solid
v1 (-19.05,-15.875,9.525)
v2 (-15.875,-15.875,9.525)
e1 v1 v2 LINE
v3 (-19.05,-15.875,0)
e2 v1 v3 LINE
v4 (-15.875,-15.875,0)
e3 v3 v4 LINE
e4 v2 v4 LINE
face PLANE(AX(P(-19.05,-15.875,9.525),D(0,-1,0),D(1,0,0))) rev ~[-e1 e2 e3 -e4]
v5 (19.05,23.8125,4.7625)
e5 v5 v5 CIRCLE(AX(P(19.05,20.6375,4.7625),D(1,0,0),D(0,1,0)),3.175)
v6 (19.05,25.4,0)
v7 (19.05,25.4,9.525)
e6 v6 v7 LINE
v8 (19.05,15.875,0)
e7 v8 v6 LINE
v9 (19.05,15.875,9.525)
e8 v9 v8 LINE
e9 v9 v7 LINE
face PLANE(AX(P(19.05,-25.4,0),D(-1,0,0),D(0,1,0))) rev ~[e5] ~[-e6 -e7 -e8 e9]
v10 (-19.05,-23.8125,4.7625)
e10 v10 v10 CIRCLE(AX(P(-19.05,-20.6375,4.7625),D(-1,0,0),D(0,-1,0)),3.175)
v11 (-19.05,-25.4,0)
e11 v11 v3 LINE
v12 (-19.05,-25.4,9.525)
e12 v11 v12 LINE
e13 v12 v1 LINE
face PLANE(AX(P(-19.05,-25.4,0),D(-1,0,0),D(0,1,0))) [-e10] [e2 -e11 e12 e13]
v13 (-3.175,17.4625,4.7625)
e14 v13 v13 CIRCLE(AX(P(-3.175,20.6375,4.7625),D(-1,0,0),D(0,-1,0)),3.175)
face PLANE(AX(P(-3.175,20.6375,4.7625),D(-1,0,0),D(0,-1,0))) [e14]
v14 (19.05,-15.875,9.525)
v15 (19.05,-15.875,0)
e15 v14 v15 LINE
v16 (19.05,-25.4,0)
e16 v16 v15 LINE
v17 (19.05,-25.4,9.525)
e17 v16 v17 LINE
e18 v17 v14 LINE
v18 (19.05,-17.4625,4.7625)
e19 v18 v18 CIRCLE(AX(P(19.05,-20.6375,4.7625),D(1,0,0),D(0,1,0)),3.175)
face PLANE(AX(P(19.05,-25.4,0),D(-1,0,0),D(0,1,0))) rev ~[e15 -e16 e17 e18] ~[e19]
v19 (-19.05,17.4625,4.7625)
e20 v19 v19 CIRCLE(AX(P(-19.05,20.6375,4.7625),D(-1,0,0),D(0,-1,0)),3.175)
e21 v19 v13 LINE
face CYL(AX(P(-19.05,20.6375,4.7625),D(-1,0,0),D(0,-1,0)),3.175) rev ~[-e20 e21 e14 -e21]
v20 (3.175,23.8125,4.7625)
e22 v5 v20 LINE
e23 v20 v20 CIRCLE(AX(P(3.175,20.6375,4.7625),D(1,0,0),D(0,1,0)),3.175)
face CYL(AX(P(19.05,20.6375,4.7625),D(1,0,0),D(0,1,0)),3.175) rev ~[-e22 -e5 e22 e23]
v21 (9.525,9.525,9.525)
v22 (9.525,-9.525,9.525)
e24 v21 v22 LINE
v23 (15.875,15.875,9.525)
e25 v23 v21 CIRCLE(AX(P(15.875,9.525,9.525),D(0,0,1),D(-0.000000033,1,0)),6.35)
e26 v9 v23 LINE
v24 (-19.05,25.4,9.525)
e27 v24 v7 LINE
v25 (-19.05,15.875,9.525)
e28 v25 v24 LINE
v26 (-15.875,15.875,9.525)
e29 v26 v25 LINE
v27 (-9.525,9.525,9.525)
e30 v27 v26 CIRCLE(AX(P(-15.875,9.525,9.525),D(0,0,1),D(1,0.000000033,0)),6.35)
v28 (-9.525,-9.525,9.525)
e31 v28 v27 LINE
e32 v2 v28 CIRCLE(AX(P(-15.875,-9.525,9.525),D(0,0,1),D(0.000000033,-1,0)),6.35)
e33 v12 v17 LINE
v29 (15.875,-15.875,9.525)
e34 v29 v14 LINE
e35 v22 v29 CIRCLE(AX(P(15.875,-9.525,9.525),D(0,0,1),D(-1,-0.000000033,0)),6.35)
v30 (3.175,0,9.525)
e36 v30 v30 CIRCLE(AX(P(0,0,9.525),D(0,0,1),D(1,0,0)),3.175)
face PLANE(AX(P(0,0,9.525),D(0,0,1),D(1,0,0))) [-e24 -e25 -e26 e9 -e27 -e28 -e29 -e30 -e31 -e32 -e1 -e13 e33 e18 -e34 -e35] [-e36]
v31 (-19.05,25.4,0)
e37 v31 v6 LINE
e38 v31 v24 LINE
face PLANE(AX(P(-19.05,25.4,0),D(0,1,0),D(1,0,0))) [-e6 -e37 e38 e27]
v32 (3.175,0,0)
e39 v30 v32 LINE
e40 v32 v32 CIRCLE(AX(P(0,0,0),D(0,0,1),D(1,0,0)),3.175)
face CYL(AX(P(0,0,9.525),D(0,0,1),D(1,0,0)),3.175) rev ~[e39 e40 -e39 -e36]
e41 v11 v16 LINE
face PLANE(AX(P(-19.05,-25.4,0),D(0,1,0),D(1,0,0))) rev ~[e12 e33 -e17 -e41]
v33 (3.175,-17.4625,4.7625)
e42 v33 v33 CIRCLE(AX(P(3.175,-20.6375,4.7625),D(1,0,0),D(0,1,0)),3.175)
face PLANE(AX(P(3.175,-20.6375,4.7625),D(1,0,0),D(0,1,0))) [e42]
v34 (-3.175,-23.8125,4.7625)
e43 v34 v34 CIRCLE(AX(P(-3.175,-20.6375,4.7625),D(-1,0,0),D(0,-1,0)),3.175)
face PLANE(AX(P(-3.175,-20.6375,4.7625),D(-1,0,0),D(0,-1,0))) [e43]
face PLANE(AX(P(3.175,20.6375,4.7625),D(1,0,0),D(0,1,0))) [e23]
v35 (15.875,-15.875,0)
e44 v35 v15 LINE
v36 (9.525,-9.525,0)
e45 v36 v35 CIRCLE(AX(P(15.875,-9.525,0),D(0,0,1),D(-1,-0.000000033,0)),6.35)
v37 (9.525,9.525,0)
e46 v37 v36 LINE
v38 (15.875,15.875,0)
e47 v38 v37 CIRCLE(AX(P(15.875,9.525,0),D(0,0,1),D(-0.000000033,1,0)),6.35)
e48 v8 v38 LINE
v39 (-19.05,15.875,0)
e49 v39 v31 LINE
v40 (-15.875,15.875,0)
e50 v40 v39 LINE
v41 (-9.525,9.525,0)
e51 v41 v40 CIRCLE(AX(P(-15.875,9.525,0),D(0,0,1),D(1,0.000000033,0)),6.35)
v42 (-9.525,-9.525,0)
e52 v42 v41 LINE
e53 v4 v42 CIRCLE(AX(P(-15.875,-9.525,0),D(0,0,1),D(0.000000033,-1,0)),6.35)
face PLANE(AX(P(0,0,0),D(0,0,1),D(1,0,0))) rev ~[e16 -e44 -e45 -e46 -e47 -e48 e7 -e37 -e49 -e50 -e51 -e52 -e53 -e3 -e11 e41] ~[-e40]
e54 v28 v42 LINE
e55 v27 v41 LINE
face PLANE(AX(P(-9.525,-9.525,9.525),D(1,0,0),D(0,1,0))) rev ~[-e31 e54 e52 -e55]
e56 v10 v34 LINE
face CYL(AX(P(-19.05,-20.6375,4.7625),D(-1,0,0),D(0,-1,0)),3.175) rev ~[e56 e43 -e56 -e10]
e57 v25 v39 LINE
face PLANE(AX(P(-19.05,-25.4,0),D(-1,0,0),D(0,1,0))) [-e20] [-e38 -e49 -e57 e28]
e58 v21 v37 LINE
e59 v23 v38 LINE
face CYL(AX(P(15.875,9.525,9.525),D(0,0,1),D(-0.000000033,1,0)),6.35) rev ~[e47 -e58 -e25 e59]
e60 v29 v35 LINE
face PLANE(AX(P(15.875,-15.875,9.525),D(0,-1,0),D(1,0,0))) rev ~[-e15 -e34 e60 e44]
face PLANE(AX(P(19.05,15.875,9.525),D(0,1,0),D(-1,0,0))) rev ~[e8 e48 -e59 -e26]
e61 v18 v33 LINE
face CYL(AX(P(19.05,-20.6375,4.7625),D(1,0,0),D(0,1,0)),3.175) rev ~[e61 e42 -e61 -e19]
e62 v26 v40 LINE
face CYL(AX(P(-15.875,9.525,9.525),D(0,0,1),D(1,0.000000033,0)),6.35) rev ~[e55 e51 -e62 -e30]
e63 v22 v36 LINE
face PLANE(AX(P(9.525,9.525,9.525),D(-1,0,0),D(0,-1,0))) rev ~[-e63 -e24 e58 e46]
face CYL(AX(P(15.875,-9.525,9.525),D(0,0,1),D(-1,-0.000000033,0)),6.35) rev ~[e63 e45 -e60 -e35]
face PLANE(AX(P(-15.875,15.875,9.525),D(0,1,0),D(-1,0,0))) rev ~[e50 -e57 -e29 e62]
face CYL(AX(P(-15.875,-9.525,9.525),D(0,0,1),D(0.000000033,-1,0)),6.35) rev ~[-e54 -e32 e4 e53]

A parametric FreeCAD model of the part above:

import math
import FreeCAD as App
import Part
import Sketcher
Q = App.Units.Quantity

doc = App.newDocument("Part")
body = doc.addObject("PartDesign::Body", "Body")

# Sketch on XY plane
sketch1 = body.newObject("Sketcher::SketchObject", "Sketch")
sketch1.AttachmentSupport = (doc.getObject("XY_Plane"), [""])
sketch1.MapMode = "FlatFace"
sketch1.addGeometry([
    Part.LineSegment(App.Vector(-19.05, 25.4, 0), App.Vector(-19.05, -25.4, 0)),
    Part.LineSegment(App.Vector(-19.05, -25.4, 0), App.Vector(19.05, -25.4, 0)),
    Part.LineSegment(App.Vector(19.05, -25.4, 0), App.Vector(19.05, 25.4, 0)),
    Part.LineSegment(App.Vector(19.05, 25.4, 0), App.Vector(-19.05, 25.4, 0)),
], False)
sketch1.addConstraint([
    Sketcher.Constraint("Coincident", 0, 2, 1, 1),
    Sketcher.Constraint("Coincident", 1, 2, 2, 1),
    Sketcher.Constraint("Coincident", 2, 2, 3, 1),
    Sketcher.Constraint("Coincident", 3, 2, 0, 1),
    Sketcher.Constraint("Vertical", 0),
    Sketcher.Constraint("Horizontal", 1),
    Sketcher.Constraint("Vertical", 2),
    Sketcher.Constraint("Horizontal", 3),
    Sketcher.Constraint("Symmetric", 0, 2, 2, 2, -1, 1),
    Sketcher.Constraint("DistanceY", 0, 2, 0, 1, Q("2 in")),
    Sketcher.Constraint("DistanceX", 1, 1, 1, 2, Q("1.5 in")),
])
pad1 = body.newObject("PartDesign::Pad", "Pad")
pad1.Profile = sketch1
pad1.Length = Q("0.375 in")

# Sketch on XY plane
sketch2 = body.newObject("Sketcher::SketchObject", "Sketch001")
sketch2.AttachmentSupport = (doc.getObject("XY_Plane"), [""])
sketch2.MapMode = "FlatFace"
sketch2.AttachmentOffset = App.Placement(App.Vector(0, 0, 0.375 * 25.4), App.Rotation())
sketch2.addGeometry([
    Part.LineSegment(App.Vector(-15.875, 15.875, 0), App.Vector(-19.05, 15.875, 0)),  # 0
    Part.LineSegment(App.Vector(-19.05, 15.875, 0), App.Vector(-19.05, -15.875, 0)),  # 1
    Part.LineSegment(App.Vector(-19.05, -15.875, 0), App.Vector(-15.875, -15.875, 0)),  # 2
    Part.ArcOfCircle(Part.Circle(App.Vector(-15.875, -9.525, 0), App.Vector(0, 0, 1), 6.35), math.radians(-89.999998), math.radians(-0.000002)),  # 3
    Part.LineSegment(App.Vector(-9.525, -9.525, 0), App.Vector(-9.525, 9.525, 0)),  # 4
    Part.ArcOfCircle(Part.Circle(App.Vector(-15.875, 9.525, 0), App.Vector(0, 0, 1), 6.35), math.radians(0.000002), math.radians(89.999998)),  # 5
    Part.LineSegment(App.Vector(19.05, 15.875, 0), App.Vector(15.875, 15.875, 0)),  # 6
    Part.ArcOfCircle(Part.Circle(App.Vector(15.875, 9.525, 0), App.Vector(0, 0, 1), 6.35), math.radians(90.000002), math.radians(179.999998)),  # 7
    Part.LineSegment(App.Vector(9.525, 9.525, 0), App.Vector(9.525, -9.525, 0)),  # 8
    Part.ArcOfCircle(Part.Circle(App.Vector(15.875, -9.525, 0), App.Vector(0, 0, 1), 6.35), math.radians(-179.999998), math.radians(-90.000002)),  # 9
    Part.LineSegment(App.Vector(15.875, -15.875, 0), App.Vector(19.05, -15.875, 0)),  # 10
    Part.LineSegment(App.Vector(19.05, -15.875, 0), App.Vector(19.05, 15.875, 0)),  # 11
], False)
sketch2.addConstraint([
    Sketcher.Constraint("Coincident", 0, 2, 1, 1),
    Sketcher.Constraint("Coincident", 1, 2, 2, 1),
    Sketcher.Constraint("Tangent", 2, 2, 3, 1),
    Sketcher.Constraint("Tangent", 3, 2, 4, 1),
    Sketcher.Constraint("Tangent", 4, 2, 5, 1),
    Sketcher.Constraint("Tangent", 5, 2, 0, 1),
    Sketcher.Constraint("Tangent", 6, 2, 7, 1),
    Sketcher.Constraint("Tangent", 7, 2, 8, 1),
    Sketcher.Constraint("Tangent", 8, 2, 9, 1),
    Sketcher.Constraint("Tangent", 9, 2, 10, 1),
    Sketcher.Constraint("Coincident", 10, 2, 11, 1),
    Sketcher.Constraint("Coincident", 11, 2, 6, 1),
    Sketcher.Constraint("Horizontal", 0),
    Sketcher.Constraint("Vertical", 1),
    Sketcher.Constraint("Horizontal", 2),
    Sketcher.Constraint("Vertical", 4),
    Sketcher.Constraint("Horizontal", 6),
    Sketcher.Constraint("Vertical", 8),
    Sketcher.Constraint("Horizontal", 10),
    Sketcher.Constraint("Vertical", 11),
    Sketcher.Constraint("Equal", 3, 5),
    Sketcher.Constraint("Equal", 5, 7),
    Sketcher.Constraint("Equal", 7, 9),
    Sketcher.Constraint("Symmetric", 3, 3, 7, 3, -1, 1),
    Sketcher.Constraint("Symmetric", 0, 2, 10, 2, -1, 1),
    Sketcher.Constraint("Horizontal", 5, 3, 7, 3),
    Sketcher.Constraint("Radius", 3, Q("0.25 in")),
    Sketcher.Constraint("DistanceY", 3, 3, 0, 2, Q("1 in")),
    Sketcher.Constraint("DistanceX", 3, 2, 9, 3, Q("1 in")),
    Sketcher.Constraint("DistanceX", 0, 2, 0, 1, Q("0.125 in")),
])
pocket1 = body.newObject("PartDesign::Pocket", "Pocket")
pocket1.Profile = sketch2
pocket1.Type = "ThroughAll"

# Sketch on YZ plane
sketch3 = body.newObject("Sketcher::SketchObject", "Sketch002")
sketch3.AttachmentSupport = (doc.getObject("YZ_Plane"), [""])
sketch3.MapMode = "FlatFace"
sketch3.AttachmentOffset = App.Placement(App.Vector(0, 0, -0.75 * 25.4), App.Rotation())
sketch3.addGeometry([
    Part.Circle(App.Vector(20.6375, 4.7625, 0), App.Vector(0, 0, 1), 3.175),
    Part.Circle(App.Vector(-20.6375, 4.7625, 0), App.Vector(0, 0, 1), 3.175),
], False)
sketch3.addConstraint([
    Sketcher.Constraint("Equal", 0, 1),
    Sketcher.Constraint("Symmetric", 0, 3, 1, 3, -2),
    Sketcher.Constraint("Diameter", 0, Q("0.25 in")),
    Sketcher.Constraint("DistanceX", -1, 1, 0, 3, Q("0.8125 in")),
    Sketcher.Constraint("DistanceY", -1, 1, 0, 3, Q("0.1875 in")),
])
pocket2 = body.newObject("PartDesign::Pocket", "Pocket001")
pocket2.Profile = sketch3
pocket2.Length = Q("0.625 in")
pocket2.Reversed = True

# Sketch on XY plane
sketch4 = body.newObject("Sketcher::SketchObject", "Sketch003")
sketch4.AttachmentSupport = (doc.getObject("XY_Plane"), [""])
sketch4.MapMode = "FlatFace"
sketch4.AttachmentOffset = App.Placement(App.Vector(0, 0, 0.375 * 25.4), App.Rotation())
sketch4.addGeometry(Part.Circle(App.Vector(0, 0, 0), App.Vector(0, 0, 1), 3.175), False)
sketch4.addConstraint([
    Sketcher.Constraint("Coincident", 0, 3, -1, 1),
    Sketcher.Constraint("Diameter", 0, Q("0.25 in")),
])
pocket3 = body.newObject("PartDesign::Pocket", "Pocket002")
pocket3.Profile = sketch4
pocket3.Type = "ThroughAll"

# Sketch on YZ plane
sketch5 = body.newObject("Sketcher::SketchObject", "Sketch004")
sketch5.AttachmentSupport = (doc.getObject("YZ_Plane"), [""])
sketch5.MapMode = "FlatFace"
sketch5.AttachmentOffset = App.Placement(App.Vector(0, 0, 0.75 * 25.4), App.Rotation())
sketch5.addGeometry([
    Part.Circle(App.Vector(-20.6375, 4.7625, 0), App.Vector(0, 0, 1), 3.175),
    Part.Circle(App.Vector(20.6375, 4.7625, 0), App.Vector(0, 0, 1), 3.175),
], False)
sketch5.addConstraint([
    Sketcher.Constraint("Equal", 0, 1),
    Sketcher.Constraint("Symmetric", 0, 3, 1, 3, -2),
    Sketcher.Constraint("Diameter", 0, Q("0.25 in")),
    Sketcher.Constraint("DistanceX", 0, 3, -1, 1, Q("0.8125 in")),
    Sketcher.Constraint("DistanceY", -1, 1, 0, 3, Q("0.1875 in")),
])
pocket4 = body.newObject("PartDesign::Pocket", "Pocket003")
pocket4.Profile = sketch5
pocket4.Length = Q("0.625 in")

doc.recompute()
